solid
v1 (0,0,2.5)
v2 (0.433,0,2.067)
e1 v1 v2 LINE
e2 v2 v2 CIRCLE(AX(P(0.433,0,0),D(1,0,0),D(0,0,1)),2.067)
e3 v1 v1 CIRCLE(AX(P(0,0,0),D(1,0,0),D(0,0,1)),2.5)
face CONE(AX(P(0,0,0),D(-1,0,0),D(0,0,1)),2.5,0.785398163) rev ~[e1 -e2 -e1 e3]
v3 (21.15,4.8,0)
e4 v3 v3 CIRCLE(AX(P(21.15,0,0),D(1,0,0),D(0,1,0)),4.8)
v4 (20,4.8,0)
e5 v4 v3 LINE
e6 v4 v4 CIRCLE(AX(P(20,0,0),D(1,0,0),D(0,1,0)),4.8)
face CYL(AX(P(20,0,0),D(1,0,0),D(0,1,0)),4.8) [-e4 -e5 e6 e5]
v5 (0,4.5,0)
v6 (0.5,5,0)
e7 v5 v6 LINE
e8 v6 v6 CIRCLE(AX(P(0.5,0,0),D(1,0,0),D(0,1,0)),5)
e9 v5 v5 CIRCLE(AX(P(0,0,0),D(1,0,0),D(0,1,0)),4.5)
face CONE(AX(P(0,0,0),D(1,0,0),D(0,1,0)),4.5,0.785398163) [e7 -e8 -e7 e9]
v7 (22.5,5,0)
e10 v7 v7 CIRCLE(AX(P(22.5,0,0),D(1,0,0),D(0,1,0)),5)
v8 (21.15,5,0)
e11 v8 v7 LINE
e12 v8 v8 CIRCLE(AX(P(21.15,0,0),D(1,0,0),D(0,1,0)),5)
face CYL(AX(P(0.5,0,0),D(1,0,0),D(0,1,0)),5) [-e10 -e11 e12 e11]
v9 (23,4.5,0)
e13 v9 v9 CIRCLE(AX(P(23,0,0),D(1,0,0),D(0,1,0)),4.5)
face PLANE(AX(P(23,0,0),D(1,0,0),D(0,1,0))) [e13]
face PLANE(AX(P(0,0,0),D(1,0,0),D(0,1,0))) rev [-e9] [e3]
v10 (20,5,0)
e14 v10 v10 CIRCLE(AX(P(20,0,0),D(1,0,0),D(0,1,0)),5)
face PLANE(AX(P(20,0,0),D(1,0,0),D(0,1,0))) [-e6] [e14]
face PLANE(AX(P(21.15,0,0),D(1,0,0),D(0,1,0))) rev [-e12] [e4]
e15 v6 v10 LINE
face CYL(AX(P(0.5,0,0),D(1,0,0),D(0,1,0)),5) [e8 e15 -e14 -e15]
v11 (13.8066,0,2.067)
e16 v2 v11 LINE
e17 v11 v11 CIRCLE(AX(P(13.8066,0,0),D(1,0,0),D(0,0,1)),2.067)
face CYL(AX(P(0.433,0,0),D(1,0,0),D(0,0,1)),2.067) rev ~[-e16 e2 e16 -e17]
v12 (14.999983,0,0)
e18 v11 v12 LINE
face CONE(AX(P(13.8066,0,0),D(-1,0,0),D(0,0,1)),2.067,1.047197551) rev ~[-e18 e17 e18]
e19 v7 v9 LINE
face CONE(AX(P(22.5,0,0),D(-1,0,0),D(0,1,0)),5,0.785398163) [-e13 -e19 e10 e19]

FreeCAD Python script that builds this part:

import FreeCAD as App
import Part
import Sketcher


def add_polygon(sketch, points):
    """Adds a closed chain of lines whose ends are joined by coincident constraints."""
    first, n = sketch.GeometryCount, len(points)
    for a, b in zip(points, points[1:] + points[:1]):
        sketch.addGeometry(Part.LineSegment(App.Vector(*a, 0), App.Vector(*b, 0)), False)
    for i in range(n):
        sketch.addConstraint(Sketcher.Constraint("Coincident", first + i, 2, first + (i + 1) % n, 1))

doc = App.newDocument("Part")
body = doc.addObject("PartDesign::Body", "Body")

sketch1 = body.newObject("Sketcher::SketchObject", "Sketch")
sketch1.AttachmentSupport = (doc.getObject("XY_Plane"), [""])
sketch1.MapMode = "FlatFace"
add_polygon(sketch1, [(0, 0), (23, 0), (23, 4.5), (22.5, 5), (0.5, 5), (0, 4.5)])
sketch1.addConstraint([
    Sketcher.Constraint("Horizontal", 0),
    Sketcher.Constraint("Vertical", 1),
    Sketcher.Constraint("Horizontal", 3),
    Sketcher.Constraint("Vertical", 5),
    Sketcher.Constraint("Coincident", 5, 2, -1, 1),
    Sketcher.Constraint("Perpendicular", 2, 4),
    Sketcher.Constraint("Horizontal", 1, 2, 4, 2),
    Sketcher.Constraint("Equal", 2, 4),
    Sketcher.Constraint("DistanceX", 0, 1, 0, 2, 23.0),
    Sketcher.Constraint("DistanceX", 3, 2, 3, 1, 22.0),
    Sketcher.Constraint("DistanceY", 1, 1, 1, 2, 4.5),
])
revolution = body.newObject("PartDesign::Revolution", "Revolution")
revolution.Profile = sketch1
revolution.ReferenceAxis = (sketch1, ["H_Axis"])
revolution.Angle = 360

sketch2 = body.newObject("Sketcher::SketchObject", "Sketch001")
sketch2.AttachmentSupport = (doc.getObject("YZ_Plane"), [""])
sketch2.MapMode = "FlatFace"
sketch2.addGeometry(Part.Circle(App.Vector(0, 0, 0), App.Vector(0, 0, 1), 2.1), False)
sketch2.addConstraint([
    Sketcher.Constraint("Coincident", 0, 3, -1, 1),
    Sketcher.Constraint("Diameter", 0, 4.134),
])
doc.recompute()
hole = body.newObject("PartDesign::Hole", "Hole")
hole.Profile = sketch2
hole.ThreadType = "None"
hole.Diameter = 4.134
hole.DepthType = "Dimension"
hole.Depth = 13.8066
hole.DrillPoint = "Angled"
hole.DrillPointAngle = 120
hole.HoleCutType = "Countersink"
hole.HoleCutDiameter = 5
hole.HoleCutCountersinkAngle = 90
hole.Reversed = True

sketch3 = body.newObject("Sketcher::SketchObject", "Sketch002")
sketch3.AttachmentSupport = (doc.getObject("XY_Plane"), [""])
sketch3.MapMode = "FlatFace"
add_polygon(sketch3, [(21.1, 9.6), (20, 9.6), (20, 4.8), (21.1, 4.8)])
sketch3.addConstraint([
    Sketcher.Constraint("Horizontal", 0),
    Sketcher.Constraint("Vertical", 1),
    Sketcher.Constraint("Horizontal", 2),
    Sketcher.Constraint("Vertical", 3),
    Sketcher.Constraint("DistanceY", 1, 2, 1, 1, 4.8),
    Sketcher.Constraint("DistanceX", -1, 1, 0, 2, 20.0),
    Sketcher.Constraint("DistanceX", 0, 2, 0, 1, 1.15),
    Sketcher.Constraint("DistanceY", -1, 1, 0, 2, 9.6),
])
groove = body.newObject("PartDesign::Groove", "Groove")
groove.Profile = sketch3
groove.ReferenceAxis = (sketch3, ["H_Axis"])
groove.Angle = 360

doc.recompute()
